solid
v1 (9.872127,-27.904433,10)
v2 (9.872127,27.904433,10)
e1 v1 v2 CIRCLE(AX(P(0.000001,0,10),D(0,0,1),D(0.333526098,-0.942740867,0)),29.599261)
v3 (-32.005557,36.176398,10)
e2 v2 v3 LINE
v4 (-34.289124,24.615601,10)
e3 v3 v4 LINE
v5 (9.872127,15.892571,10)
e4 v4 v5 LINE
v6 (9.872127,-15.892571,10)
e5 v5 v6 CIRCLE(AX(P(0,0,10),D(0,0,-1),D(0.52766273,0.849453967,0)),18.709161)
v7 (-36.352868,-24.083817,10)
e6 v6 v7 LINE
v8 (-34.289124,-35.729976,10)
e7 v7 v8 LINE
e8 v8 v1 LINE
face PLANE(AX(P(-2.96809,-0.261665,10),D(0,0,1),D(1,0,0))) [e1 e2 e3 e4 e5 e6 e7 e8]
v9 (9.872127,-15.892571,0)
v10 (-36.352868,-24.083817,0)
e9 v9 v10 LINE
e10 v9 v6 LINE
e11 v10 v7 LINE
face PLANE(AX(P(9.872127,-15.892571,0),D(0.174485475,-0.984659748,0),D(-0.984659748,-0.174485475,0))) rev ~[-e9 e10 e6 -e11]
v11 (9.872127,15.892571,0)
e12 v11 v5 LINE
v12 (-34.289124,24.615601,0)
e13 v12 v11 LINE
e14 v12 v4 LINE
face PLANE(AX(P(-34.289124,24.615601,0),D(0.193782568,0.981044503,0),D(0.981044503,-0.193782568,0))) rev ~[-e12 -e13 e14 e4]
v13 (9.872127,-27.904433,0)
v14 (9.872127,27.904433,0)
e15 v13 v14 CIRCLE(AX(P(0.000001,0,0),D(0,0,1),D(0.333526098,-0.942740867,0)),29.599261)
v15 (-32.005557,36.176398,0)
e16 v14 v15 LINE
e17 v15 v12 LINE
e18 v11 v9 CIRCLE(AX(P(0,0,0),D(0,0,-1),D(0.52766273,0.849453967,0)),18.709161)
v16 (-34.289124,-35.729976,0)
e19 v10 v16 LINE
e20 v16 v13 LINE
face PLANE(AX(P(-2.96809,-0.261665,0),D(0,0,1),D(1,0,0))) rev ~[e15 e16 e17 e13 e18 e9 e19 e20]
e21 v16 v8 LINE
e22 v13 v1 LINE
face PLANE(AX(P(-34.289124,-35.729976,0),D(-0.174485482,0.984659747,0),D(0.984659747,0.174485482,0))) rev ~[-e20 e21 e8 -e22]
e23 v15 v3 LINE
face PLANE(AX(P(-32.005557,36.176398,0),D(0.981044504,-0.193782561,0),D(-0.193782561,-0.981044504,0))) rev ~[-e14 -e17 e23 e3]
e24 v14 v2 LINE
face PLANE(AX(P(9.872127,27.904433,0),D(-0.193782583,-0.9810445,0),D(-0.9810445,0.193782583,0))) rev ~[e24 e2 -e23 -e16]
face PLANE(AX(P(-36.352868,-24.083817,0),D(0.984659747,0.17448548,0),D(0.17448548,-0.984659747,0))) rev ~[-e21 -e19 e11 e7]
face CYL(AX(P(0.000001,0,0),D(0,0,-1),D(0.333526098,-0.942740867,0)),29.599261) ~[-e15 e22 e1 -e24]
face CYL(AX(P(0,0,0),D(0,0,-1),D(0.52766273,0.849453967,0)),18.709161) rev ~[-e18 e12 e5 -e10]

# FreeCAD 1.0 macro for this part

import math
import FreeCAD as App
import Part
import Sketcher
Q = App.Units.Quantity

doc = App.newDocument("Part")
body = doc.addObject("PartDesign::Body", "Body")

sketch1 = doc.addObject("Sketcher::SketchObject", "Sketch")
body.addObject(sketch1)
sketch1.AttachmentSupport = (doc.XY_Plane, [""])
sketch1.MapMode = "FlatFace"
sketch1.addGeometry([
    Part.LineSegment(App.Vector(-34.289124, -35.729976, 0), App.Vector(9.872127, -27.904433, 0)),
    Part.ArcOfCircle(Part.Circle(App.Vector(0.000001, 0, 0), App.Vector(0, 0, 1), 29.599261), math.radians(-70.517064), math.radians(70.517064)),
    Part.LineSegment(App.Vector(9.872127, 27.904433, 0), App.Vector(-32.005557, 36.176398, 0)),
    Part.LineSegment(App.Vector(-32.005557, 36.176398, 0), App.Vector(-34.289124, 24.615601, 0)),
    Part.LineSegment(App.Vector(-34.289124, 24.615601, 0), App.Vector(9.872127, 15.892571, 0)),
    Part.ArcOfCircle(Part.Circle(App.Vector(0, 0, 0), App.Vector(0, 0, 1), 18.709161), math.radians(-58.152329), math.radians(58.152329)),
    Part.LineSegment(App.Vector(9.872127, -15.892571, 0), App.Vector(-36.352868, -24.083817, 0)),
    Part.LineSegment(App.Vector(-36.352868, -24.083817, 0), App.Vector(-34.289124, -35.729976, 0)),
], False)
sketch1.addConstraint([
    Sketcher.Constraint("Coincident", 0, 2, 1, 1),
    Sketcher.Constraint("Coincident", 1, 2, 2, 1),
    Sketcher.Constraint("Coincident", 2, 2, 3, 1),
    Sketcher.Constraint("Coincident", 3, 2, 4, 1),
    Sketcher.Constraint("Coincident", 4, 2, 5, 2),
    Sketcher.Constraint("Coincident", 5, 1, 6, 1),
    Sketcher.Constraint("Coincident", 6, 2, 7, 1),
    Sketcher.Constraint("Coincident", 7, 2, 0, 1),
    Sketcher.Constraint("Coincident", 1, 3, -1, 1),
    Sketcher.Constraint("Coincident", 5, 3, -1, 1),
    Sketcher.Constraint("Radius", 1, Q("29.599261 mm")),
    Sketcher.Constraint("Radius", 5, Q("18.709161 mm")),
    Sketcher.Constraint("DistanceY", -1, 1, 3, 2, Q("24.615601 mm")),
    Sketcher.Constraint("Distance", 0, Q("44.84925 mm")),
    Sketcher.Constraint("Distance", 3, Q("11.784172 mm")),
    Sketcher.Constraint("DistanceY", -1, 1, 4, 2, Q("15.892571 mm")),
    Sketcher.Constraint("DistanceY", 5, 1, -1, 1, Q("15.892571 mm")),
    Sketcher.Constraint("DistanceY", 0, 2, 2, 2, Q("64.080831 mm")),
    Sketcher.Constraint("DistanceX", 3, 2, 1, 2, Q("44.161251 mm")),
    Sketcher.Constraint("DistanceX", 3, 2, 0, 2, Q("44.161251 mm")),
    Sketcher.Constraint("DistanceX", 3, 2, 4, 2, Q("44.161251 mm")),
    Sketcher.Constraint("DistanceX", 6, 2, 5, 3, Q("36.352868 mm")),
    Sketcher.Constraint("DistanceY", 7, 2, 6, 2, Q("11.646159 mm")),
    Sketcher.Constraint("DistanceX", 7, 2, 0, 2, Q("44.161251 mm")),
])
pad1 = doc.addObject("PartDesign::Pad", "Pad")
body.addObject(pad1)
pad1.Profile = sketch1
pad1.Length = 10

doc.recompute()
